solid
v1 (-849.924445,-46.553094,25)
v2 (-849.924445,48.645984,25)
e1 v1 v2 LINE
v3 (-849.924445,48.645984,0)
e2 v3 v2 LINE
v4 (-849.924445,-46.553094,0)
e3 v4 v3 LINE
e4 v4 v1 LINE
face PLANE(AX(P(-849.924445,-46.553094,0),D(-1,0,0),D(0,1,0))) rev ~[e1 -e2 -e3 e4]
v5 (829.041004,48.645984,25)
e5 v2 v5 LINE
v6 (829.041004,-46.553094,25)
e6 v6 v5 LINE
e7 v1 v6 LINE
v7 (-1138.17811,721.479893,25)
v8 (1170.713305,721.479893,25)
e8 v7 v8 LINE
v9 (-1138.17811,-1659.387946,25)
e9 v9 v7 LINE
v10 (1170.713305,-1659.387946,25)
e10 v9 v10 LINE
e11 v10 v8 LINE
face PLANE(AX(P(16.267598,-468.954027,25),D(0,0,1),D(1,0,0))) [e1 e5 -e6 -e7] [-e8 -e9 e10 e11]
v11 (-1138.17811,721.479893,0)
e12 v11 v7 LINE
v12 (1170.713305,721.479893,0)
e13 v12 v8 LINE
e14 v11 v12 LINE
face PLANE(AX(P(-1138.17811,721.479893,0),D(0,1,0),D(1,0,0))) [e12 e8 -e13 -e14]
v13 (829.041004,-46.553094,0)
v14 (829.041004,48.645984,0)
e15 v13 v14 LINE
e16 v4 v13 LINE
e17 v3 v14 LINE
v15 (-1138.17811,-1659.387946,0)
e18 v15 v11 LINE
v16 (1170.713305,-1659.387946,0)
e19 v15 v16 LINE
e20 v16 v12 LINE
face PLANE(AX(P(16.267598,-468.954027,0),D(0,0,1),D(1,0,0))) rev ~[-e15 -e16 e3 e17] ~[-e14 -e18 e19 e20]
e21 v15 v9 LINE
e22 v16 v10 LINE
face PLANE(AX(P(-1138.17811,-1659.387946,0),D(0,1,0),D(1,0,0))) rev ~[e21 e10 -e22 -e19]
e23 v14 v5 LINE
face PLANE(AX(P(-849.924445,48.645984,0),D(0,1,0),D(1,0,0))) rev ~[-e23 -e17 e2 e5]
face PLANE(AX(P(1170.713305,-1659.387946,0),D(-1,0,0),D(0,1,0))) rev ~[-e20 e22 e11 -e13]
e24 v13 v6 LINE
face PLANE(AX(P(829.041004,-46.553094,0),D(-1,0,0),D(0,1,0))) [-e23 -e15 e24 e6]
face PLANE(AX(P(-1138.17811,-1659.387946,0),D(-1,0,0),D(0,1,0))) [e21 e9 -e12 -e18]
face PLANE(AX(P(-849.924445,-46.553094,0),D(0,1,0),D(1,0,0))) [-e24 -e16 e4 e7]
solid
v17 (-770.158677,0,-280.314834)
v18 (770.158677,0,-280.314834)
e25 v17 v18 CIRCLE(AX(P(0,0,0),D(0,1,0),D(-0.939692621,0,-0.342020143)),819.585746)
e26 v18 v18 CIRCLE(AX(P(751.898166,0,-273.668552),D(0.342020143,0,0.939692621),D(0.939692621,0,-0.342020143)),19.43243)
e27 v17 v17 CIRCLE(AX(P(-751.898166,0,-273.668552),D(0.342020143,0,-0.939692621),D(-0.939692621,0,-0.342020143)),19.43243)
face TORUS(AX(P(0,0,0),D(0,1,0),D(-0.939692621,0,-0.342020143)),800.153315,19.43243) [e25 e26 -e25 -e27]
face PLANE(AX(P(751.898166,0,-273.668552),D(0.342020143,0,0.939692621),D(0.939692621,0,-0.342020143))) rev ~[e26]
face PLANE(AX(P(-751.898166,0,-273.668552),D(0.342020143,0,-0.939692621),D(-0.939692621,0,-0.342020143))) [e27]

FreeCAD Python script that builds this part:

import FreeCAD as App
import Part
import Sketcher

V = App.Vector
Q = App.Units.Quantity

doc = App.newDocument("Part")
body = doc.addObject("PartDesign::Body", "Body")

# Sketch on an angled plane
sketch1 = body.newObject("Sketcher::SketchObject", "Sketch")
sketch1.Placement = App.Placement(V(0, 0, 0), App.Rotation(V(-0.939692621, 0, -0.342020143), V(0, 1, 0), V(0.342020143, 0, -0.939692621), "ZXY"))
sketch1.addGeometry(Part.Circle(V(800, 0, 0), V(0, 0, 1), 19), False)
sketch1.addConstraint([
    Sketcher.Constraint("PointOnObject", 0, 3, -1),
    Sketcher.Constraint("Diameter", 0, Q("38.864861 mm")),
    Sketcher.Constraint("DistanceX", -1, 1, 0, 3, Q("800.153315 mm")),
])
revolution = body.newObject("PartDesign::Revolution", "Revolution")
revolution.Profile = sketch1
revolution.ReferenceAxis = (sketch1, ["V_Axis"])
revolution.Angle = 220
body2 = doc.addObject("PartDesign::Body", "Body001")

# Sketch on XY plane
sketch2 = body2.newObject("Sketcher::SketchObject", "Sketch001")
sketch2.AttachmentSupport = (doc.getObject("XY_Plane001"), [""])
sketch2.MapMode = "FlatFace"
sketch2.addGeometry([
    Part.LineSegment(V(-1138, 721, 0), V(-1138, -1659, 0)),  # 0
    Part.LineSegment(V(-1138, -1659, 0), V(1171, -1659, 0)),  # 1
    Part.LineSegment(V(1171, -1659, 0), V(1171, 721, 0)),  # 2
    Part.LineSegment(V(1171, 721, 0), V(-1138, 721, 0)),  # 3
    Part.LineSegment(V(829, -47, 0), V(-850, -47, 0)),  # 4
    Part.LineSegment(V(-850, -47, 0), V(-850, 49, 0)),  # 5
    Part.LineSegment(V(-850, 49, 0), V(829, 49, 0)),  # 6
    Part.LineSegment(V(829, 49, 0), V(829, -47, 0)),  # 7
], False)
sketch2.addConstraint([
    Sketcher.Constraint("Coincident", 0, 2, 1, 1),
    Sketcher.Constraint("Coincident", 1, 2, 2, 1),
    Sketcher.Constraint("Coincident", 2, 2, 3, 1),
    Sketcher.Constraint("Coincident", 3, 2, 0, 1),
    Sketcher.Constraint("Coincident", 4, 2, 5, 1),
    Sketcher.Constraint("Coincident", 5, 2, 6, 1),
    Sketcher.Constraint("Coincident", 6, 2, 7, 1),
    Sketcher.Constraint("Coincident", 7, 2, 4, 1),
    Sketcher.Constraint("Vertical", 0),
    Sketcher.Constraint("Horizontal", 1),
    Sketcher.Constraint("Vertical", 2),
    Sketcher.Constraint("Horizontal", 3),
    Sketcher.Constraint("Horizontal", 4),
    Sketcher.Constraint("Vertical", 5),
    Sketcher.Constraint("Horizontal", 6),
    Sketcher.Constraint("Vertical", 7),
    Sketcher.Constraint("DistanceX", 4, 2, 4, 1, Q("1678.965449 mm")),
    Sketcher.Constraint("DistanceY", 0, 2, 0, 1, Q("2380.867839 mm")),
    Sketcher.Constraint("DistanceY", 5, 1, 5, 2, Q("95.199078 mm")),
    Sketcher.Constraint("DistanceX", 6, 2, 2, 2, Q("341.672301 mm")),
    Sketcher.Constraint("DistanceX", 1, 1, 1, 2, Q("2308.891416 mm")),
    Sketcher.Constraint("DistanceX", 0, 2, -1, 1, Q("1138.17811 mm")),
    Sketcher.Constraint("DistanceY", 5, 2, 3, 2, Q("672.833908 mm")),
    Sketcher.Constraint("DistanceY", 0, 2, -1, 1, Q("1659.387946 mm")),
])
pad1 = body2.newObject("PartDesign::Pad", "Pad")
pad1.Profile = sketch2
pad1.Length = 25

doc.recompute()
